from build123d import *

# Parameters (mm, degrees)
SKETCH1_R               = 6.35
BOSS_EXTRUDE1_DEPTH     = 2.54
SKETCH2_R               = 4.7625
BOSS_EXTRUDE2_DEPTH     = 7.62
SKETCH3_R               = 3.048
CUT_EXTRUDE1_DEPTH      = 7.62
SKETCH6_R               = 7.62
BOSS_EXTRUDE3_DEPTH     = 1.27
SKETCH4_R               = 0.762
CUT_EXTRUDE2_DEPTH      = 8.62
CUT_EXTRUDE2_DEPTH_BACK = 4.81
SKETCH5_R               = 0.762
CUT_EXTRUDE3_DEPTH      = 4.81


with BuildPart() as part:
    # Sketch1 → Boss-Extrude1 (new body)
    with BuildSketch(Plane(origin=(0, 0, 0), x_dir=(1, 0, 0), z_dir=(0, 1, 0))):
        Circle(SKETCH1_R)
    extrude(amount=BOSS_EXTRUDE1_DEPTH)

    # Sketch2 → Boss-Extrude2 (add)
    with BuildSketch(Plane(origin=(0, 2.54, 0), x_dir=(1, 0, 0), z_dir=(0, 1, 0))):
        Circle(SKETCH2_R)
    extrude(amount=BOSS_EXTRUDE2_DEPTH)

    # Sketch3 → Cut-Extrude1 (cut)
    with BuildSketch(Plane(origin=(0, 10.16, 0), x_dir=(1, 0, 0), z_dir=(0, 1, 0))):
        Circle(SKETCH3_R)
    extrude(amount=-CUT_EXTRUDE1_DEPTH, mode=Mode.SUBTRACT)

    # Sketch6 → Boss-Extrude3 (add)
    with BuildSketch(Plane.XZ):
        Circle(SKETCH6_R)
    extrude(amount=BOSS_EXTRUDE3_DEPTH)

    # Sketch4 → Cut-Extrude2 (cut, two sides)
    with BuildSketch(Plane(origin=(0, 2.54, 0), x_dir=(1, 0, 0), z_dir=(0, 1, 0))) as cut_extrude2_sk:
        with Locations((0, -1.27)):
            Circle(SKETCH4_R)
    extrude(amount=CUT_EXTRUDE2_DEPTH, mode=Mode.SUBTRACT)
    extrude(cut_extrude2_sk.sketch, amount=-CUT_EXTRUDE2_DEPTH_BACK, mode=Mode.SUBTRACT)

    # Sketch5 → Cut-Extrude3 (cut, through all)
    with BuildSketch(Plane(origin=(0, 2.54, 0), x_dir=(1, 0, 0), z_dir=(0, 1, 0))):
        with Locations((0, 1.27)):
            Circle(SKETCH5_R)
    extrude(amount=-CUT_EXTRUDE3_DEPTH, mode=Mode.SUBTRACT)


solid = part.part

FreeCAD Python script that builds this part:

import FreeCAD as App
import Part
import Sketcher
Q = App.Units.Quantity

doc = App.newDocument("Part")
params = doc.addObject("Spreadsheet::Sheet", "Params")
for row, (alias, value) in enumerate([
    ("sketch1_diameter", "0.5 in"),
    ("pad1_length", "0.1 in"),
    ("sketch2_diameter", "0.375 in"),
    ("pad2_length", "0.3 in"),
    ("sketch3_diameter", "0.24 in"),
    ("pocket1_length", "0.3 in"),
    ("sketch4_diameter", "0.6 in"),
    ("pad3_length", "0.05 in"),
    ("sketch5_diameter", "0.06 in"),
    ("sketch6_diameter", "0.06 in"),
], start=1):
    params.set(f"A{row}", alias)
    params.set(f"B{row}", "=" + value)
    params.setAlias(f"B{row}", alias)

body = doc.addObject("PartDesign::Body", "Body")

# Sketch on XZ plane
sketch1 = body.newObject("Sketcher::SketchObject", "Sketch")
sketch1.AttachmentSupport = (doc.getObject("XZ_Plane"), [""])
sketch1.MapMode = "FlatFace"
sketch1.addGeometry(Part.Circle(App.Vector(0, 0, 0), App.Vector(0, 0, 1), 6), False)
sketch1.addConstraint([
    Sketcher.Constraint("Coincident", 0, 3, -1, 1),
    Sketcher.Constraint("Diameter", 0, Q("0.5 in")),
])
sketch1.setExpression("Constraints[1]", "Params.sketch1_diameter")
pad1 = body.newObject("PartDesign::Pad", "Pad")
pad1.Profile = sketch1
pad1.setExpression("Length", "Params.pad1_length")
pad1.Reversed = True

# Sketch on XZ plane
sketch2 = body.newObject("Sketcher::SketchObject", "Sketch001")
sketch2.AttachmentSupport = (doc.getObject("XZ_Plane"), [""])
sketch2.MapMode = "FlatFace"
sketch2.AttachmentOffset = App.Placement(App.Vector(0, 0, -0.1 * 25.4), App.Rotation())
sketch2.addGeometry(Part.Circle(App.Vector(0, 0, 0), App.Vector(0, 0, 1), 4.8), False)
sketch2.addConstraint([
    Sketcher.Constraint("Coincident", 0, 3, -1, 1),
    Sketcher.Constraint("Diameter", 0, Q("0.375 in")),
])
sketch2.setExpression("Constraints[1]", "Params.sketch2_diameter")
pad2 = body.newObject("PartDesign::Pad", "Pad001")
pad2.Profile = sketch2
pad2.setExpression("Length", "Params.pad2_length")
pad2.Reversed = True

# Sketch on XZ plane
sketch3 = body.newObject("Sketcher::SketchObject", "Sketch002")
sketch3.AttachmentSupport = (doc.getObject("XZ_Plane"), [""])
sketch3.MapMode = "FlatFace"
sketch3.AttachmentOffset = App.Placement(App.Vector(0, 0, -0.4 * 25.4), App.Rotation())
sketch3.addGeometry(Part.Circle(App.Vector(0, 0, 0), App.Vector(0, 0, 1), 3), False)
sketch3.addConstraint([
    Sketcher.Constraint("Coincident", 0, 3, -1, 1),
    Sketcher.Constraint("Diameter", 0, Q("0.24 in")),
])
sketch3.setExpression("Constraints[1]", "Params.sketch3_diameter")
pocket1 = body.newObject("PartDesign::Pocket", "Pocket")
pocket1.Profile = sketch3
pocket1.setExpression("Length", "Params.pocket1_length")
pocket1.Reversed = True

# Sketch on XZ plane
sketch4 = body.newObject("Sketcher::SketchObject", "Sketch003")
sketch4.AttachmentSupport = (doc.getObject("XZ_Plane"), [""])
sketch4.MapMode = "FlatFace"
sketch4.addGeometry(Part.Circle(App.Vector(0, 0, 0), App.Vector(0, 0, 1), 8), False)
sketch4.addConstraint([
    Sketcher.Constraint("Coincident", 0, 3, -1, 1),
    Sketcher.Constraint("Diameter", 0, Q("0.6 in")),
])
sketch4.setExpression("Constraints[1]", "Params.sketch4_diameter")
pad3 = body.newObject("PartDesign::Pad", "Pad002")
pad3.Profile = sketch4
pad3.setExpression("Length", "Params.pad3_length")

# Sketch on XZ plane
sketch5 = body.newObject("Sketcher::SketchObject", "Sketch004")
sketch5.AttachmentSupport = (doc.getObject("XZ_Plane"), [""])
sketch5.MapMode = "FlatFace"
sketch5.AttachmentOffset = App.Placement(App.Vector(0, 0, -0.1 * 25.4), App.Rotation())
sketch5.addGeometry(Part.Circle(App.Vector(0, 1.3, 0), App.Vector(0, 0, 1), 0.8), False)
sketch5.addConstraint([
    Sketcher.Constraint("PointOnObject", 0, 3, -2),
    Sketcher.Constraint("Diameter", 0, Q("0.06 in")),
    Sketcher.Constraint("DistanceY", -1, 1, 0, 3, Q("0.05 in")),
])
sketch5.setExpression("Constraints[1]", "Params.sketch5_diameter")
pocket2 = body.newObject("PartDesign::Pocket", "Pocket001")
pocket2.Profile = sketch5
pocket2.Type = "ThroughAll"
pocket2.Midplane = True

# Sketch on XZ plane
sketch6 = body.newObject("Sketcher::SketchObject", "Sketch005")
sketch6.AttachmentSupport = (doc.getObject("XZ_Plane"), [""])
sketch6.MapMode = "FlatFace"
sketch6.AttachmentOffset = App.Placement(App.Vector(0, 0, -0.1 * 25.4), App.Rotation())
sketch6.addGeometry(Part.Circle(App.Vector(0, -1.3, 0), App.Vector(0, 0, 1), 0.8), False)
sketch6.addConstraint([
    Sketcher.Constraint("PointOnObject", 0, 3, -2),
    Sketcher.Constraint("Diameter", 0, Q("0.06 in")),
    Sketcher.Constraint("DistanceY", 0, 3, -1, 1, Q("0.05 in")),
])
sketch6.setExpression("Constraints[1]", "Params.sketch6_diameter")
pocket3 = body.newObject("PartDesign::Pocket", "Pocket002")
pocket3.Profile = sketch6
pocket3.Type = "ThroughAll"
pocket3.Reversed = True

doc.recompute()
